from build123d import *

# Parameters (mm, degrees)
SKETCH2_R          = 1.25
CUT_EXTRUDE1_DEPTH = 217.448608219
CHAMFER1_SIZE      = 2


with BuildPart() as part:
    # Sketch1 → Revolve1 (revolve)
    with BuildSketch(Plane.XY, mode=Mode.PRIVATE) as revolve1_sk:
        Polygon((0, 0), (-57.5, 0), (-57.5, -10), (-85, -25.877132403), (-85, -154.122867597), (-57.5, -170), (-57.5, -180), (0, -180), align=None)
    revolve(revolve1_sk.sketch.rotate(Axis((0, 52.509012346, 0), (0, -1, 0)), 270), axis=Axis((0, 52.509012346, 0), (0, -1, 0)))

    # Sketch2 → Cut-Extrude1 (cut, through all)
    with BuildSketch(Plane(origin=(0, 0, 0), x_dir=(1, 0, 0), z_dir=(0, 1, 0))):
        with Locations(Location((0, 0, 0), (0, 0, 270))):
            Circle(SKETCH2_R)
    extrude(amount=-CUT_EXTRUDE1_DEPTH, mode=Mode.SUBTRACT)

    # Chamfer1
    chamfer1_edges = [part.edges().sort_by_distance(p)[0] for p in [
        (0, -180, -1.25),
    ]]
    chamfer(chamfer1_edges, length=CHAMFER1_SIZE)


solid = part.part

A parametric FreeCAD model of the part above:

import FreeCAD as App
import Part
import Sketcher
Q = App.Units.Quantity


def edges_at(feature, points):
    """Names of the edges that pass closest to the given points."""
    edges = feature.Shape.Edges
    near = lambda p: min(range(len(edges)), key=lambda i: edges[i].distToShape(Part.Vertex(*p))[0])
    return sorted({f"Edge{near(p) + 1}" for p in points})

doc = App.newDocument("Part")
body = doc.addObject("PartDesign::Body", "Body")

sketch1 = doc.addObject("Sketcher::SketchObject", "Sketch")
body.addObject(sketch1)
sketch1.AttachmentSupport = (doc.XY_Plane, [""])
sketch1.MapMode = "FlatFace"
sketch1.addGeometry([
    Part.LineSegment(App.Vector(0, 0, 0), App.Vector(-58, 0, 0)),
    Part.LineSegment(App.Vector(-58, 0, 0), App.Vector(-58, -10, 0)),
    Part.LineSegment(App.Vector(-58, -10, 0), App.Vector(-85, -26, 0)),
    Part.LineSegment(App.Vector(-85, -26, 0), App.Vector(-85, -154, 0)),
    Part.LineSegment(App.Vector(-85, -154, 0), App.Vector(-58, -170, 0)),
    Part.LineSegment(App.Vector(-58, -170, 0), App.Vector(-58, -180, 0)),
    Part.LineSegment(App.Vector(-58, -180, 0), App.Vector(0, -180, 0)),
    Part.LineSegment(App.Vector(0, -180, 0), App.Vector(0, 0, 0)),
], False)
sketch1.addConstraint([
    Sketcher.Constraint("Coincident", 0, 2, 1, 1),
    Sketcher.Constraint("Coincident", 1, 2, 2, 1),
    Sketcher.Constraint("Coincident", 2, 2, 3, 1),
    Sketcher.Constraint("Coincident", 3, 2, 4, 1),
    Sketcher.Constraint("Coincident", 4, 2, 5, 1),
    Sketcher.Constraint("Coincident", 5, 2, 6, 1),
    Sketcher.Constraint("Coincident", 6, 2, 7, 1),
    Sketcher.Constraint("Coincident", 7, 2, 0, 1),
    Sketcher.Constraint("Horizontal", 0),
    Sketcher.Constraint("Vertical", 1),
    Sketcher.Constraint("Vertical", 3),
    Sketcher.Constraint("Vertical", 5),
    Sketcher.Constraint("Horizontal", 6),
    Sketcher.Constraint("Vertical", 7),
    Sketcher.Constraint("Coincident", 7, 2, -1, 1),
    Sketcher.Constraint("Vertical", 1, 2, 4, 2),
    Sketcher.Constraint("Equal", 1, 5),
    Sketcher.Constraint("Equal", 2, 4),
    Sketcher.Constraint("DistanceY", 1, 2, 1, 1, 10.0),
    Sketcher.Constraint("DistanceY", 7, 1, 7, 2, 180.0),
    Sketcher.Constraint("Angle", 2, Q("-150 deg")),
    Sketcher.Constraint("DistanceX", 0, 2, 0, 1, 57.5),
    Sketcher.Constraint("DistanceX", 2, 2, -1, 1, 85.0),
])
revolution = doc.addObject("PartDesign::Revolution", "Revolution")
body.addObject(revolution)
revolution.Profile = sketch1
revolution.ReferenceAxis = (sketch1, ["V_Axis"])
revolution.Angle = 360

sketch2 = doc.addObject("Sketcher::SketchObject", "Sketch001")
body.addObject(sketch2)
sketch2.AttachmentSupport = (doc.XZ_Plane, [""])
sketch2.MapMode = "FlatFace"
sketch2.addGeometry(Part.Circle(App.Vector(0, 0, 0), App.Vector(0, 0, 1), 1.2), False)
sketch2.addConstraint([
    Sketcher.Constraint("Coincident", 0, 3, -1, 1),
    Sketcher.Constraint("Diameter", 0, 2.5),
])
pocket1 = doc.addObject("PartDesign::Pocket", "Pocket")
body.addObject(pocket1)
pocket1.Profile = sketch2
pocket1.Type = "ThroughAll"
pocket1.Reversed = True
doc.recompute()

chamfer = doc.addObject("PartDesign::Chamfer", "Chamfer")
body.addObject(chamfer)
chamfer.Base = (pocket1, edges_at(pocket1, [(0, -180, -1.25)]))
chamfer.Size = 2

doc.recompute()
